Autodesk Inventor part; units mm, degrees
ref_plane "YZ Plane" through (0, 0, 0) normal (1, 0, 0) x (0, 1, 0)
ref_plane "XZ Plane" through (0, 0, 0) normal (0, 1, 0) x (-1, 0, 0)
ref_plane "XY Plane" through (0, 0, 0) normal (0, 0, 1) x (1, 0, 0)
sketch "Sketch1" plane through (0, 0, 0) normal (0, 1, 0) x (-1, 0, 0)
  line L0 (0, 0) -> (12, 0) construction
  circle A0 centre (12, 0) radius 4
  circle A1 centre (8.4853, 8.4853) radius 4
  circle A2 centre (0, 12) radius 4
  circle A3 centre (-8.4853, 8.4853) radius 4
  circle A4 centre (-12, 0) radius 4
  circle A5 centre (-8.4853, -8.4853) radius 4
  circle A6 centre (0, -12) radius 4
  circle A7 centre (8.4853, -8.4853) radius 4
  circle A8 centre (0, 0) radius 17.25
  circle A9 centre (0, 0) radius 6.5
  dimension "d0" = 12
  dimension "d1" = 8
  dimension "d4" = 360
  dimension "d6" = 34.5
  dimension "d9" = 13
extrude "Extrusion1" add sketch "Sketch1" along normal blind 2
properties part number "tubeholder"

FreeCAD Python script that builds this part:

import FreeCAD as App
import Part
import Sketcher

doc = App.newDocument("Part")
body = doc.addObject("PartDesign::Body", "Body")

sketch1 = doc.addObject("Sketcher::SketchObject", "Sketch")
body.addObject(sketch1)
sketch1.AttachmentSupport = (doc.XZ_Plane, [""])
sketch1.MapMode = "FlatFace"
sketch1.addGeometry([
    Part.Circle(App.Vector(0, 0, 0), App.Vector(0, 0, 1), 17.2),
    Part.Circle(App.Vector(8.5, -8.5, 0), App.Vector(0, 0, 1), 4),
    Part.Circle(App.Vector(0, -12, 0), App.Vector(0, 0, 1), 4),
    Part.Circle(App.Vector(-8.5, -8.5, 0), App.Vector(0, 0, 1), 4),
    Part.Circle(App.Vector(12, 0, 0), App.Vector(0, 0, 1), 4),
    Part.Circle(App.Vector(8.5, 8.5, 0), App.Vector(0, 0, 1), 4),
    Part.Circle(App.Vector(0, 0, 0), App.Vector(0, 0, 1), 6.5),
    Part.Circle(App.Vector(-8.5, 8.5, 0), App.Vector(0, 0, 1), 4),
    Part.Circle(App.Vector(-12, 0, 0), App.Vector(0, 0, 1), 4),
    Part.Circle(App.Vector(0, 12, 0), App.Vector(0, 0, 1), 4),
], False)
sketch1.addConstraint([
    Sketcher.Constraint("Coincident", 0, 3, -1, 1),
    Sketcher.Constraint("Coincident", 6, 3, -1, 1),
    Sketcher.Constraint("Equal", 1, 2),
    Sketcher.Constraint("Equal", 2, 3),
    Sketcher.Constraint("Equal", 3, 4),
    Sketcher.Constraint("Equal", 4, 5),
    Sketcher.Constraint("Equal", 5, 7),
    Sketcher.Constraint("Equal", 7, 8),
    Sketcher.Constraint("Equal", 8, 9),
    Sketcher.Constraint("Symmetric", 3, 3, 5, 3, -1, 1),
    Sketcher.Constraint("Symmetric", 1, 3, 7, 3, -1, 1),
    Sketcher.Constraint("Symmetric", 4, 3, 8, 3, -1, 1),
    Sketcher.Constraint("Symmetric", 2, 3, 9, 3, -1, 1),
    Sketcher.Constraint("Symmetric", 1, 3, 3, 3, -2),
    Sketcher.Constraint("PointOnObject", 2, 3, -2),
    Sketcher.Constraint("PointOnObject", 4, 3, -1),
    Sketcher.Constraint("Diameter", 1, 8.0),
    Sketcher.Constraint("Diameter", 6, 13.0),
    Sketcher.Constraint("Diameter", 0, 34.5),
    Sketcher.Constraint("DistanceY", 2, 3, -1, 1, 12.0),
    Sketcher.Constraint("DistanceX", -1, 1, 4, 3, 12.0),
    Sketcher.Constraint("DistanceX", -1, 1, 1, 3, 8.4853),
    Sketcher.Constraint("DistanceY", 1, 3, -1, 1, 8.4853),
])
pad1 = doc.addObject("PartDesign::Pad", "Pad")
body.addObject(pad1)
pad1.Profile = sketch1
pad1.Length = 2
pad1.Reversed = True

doc.recompute()
